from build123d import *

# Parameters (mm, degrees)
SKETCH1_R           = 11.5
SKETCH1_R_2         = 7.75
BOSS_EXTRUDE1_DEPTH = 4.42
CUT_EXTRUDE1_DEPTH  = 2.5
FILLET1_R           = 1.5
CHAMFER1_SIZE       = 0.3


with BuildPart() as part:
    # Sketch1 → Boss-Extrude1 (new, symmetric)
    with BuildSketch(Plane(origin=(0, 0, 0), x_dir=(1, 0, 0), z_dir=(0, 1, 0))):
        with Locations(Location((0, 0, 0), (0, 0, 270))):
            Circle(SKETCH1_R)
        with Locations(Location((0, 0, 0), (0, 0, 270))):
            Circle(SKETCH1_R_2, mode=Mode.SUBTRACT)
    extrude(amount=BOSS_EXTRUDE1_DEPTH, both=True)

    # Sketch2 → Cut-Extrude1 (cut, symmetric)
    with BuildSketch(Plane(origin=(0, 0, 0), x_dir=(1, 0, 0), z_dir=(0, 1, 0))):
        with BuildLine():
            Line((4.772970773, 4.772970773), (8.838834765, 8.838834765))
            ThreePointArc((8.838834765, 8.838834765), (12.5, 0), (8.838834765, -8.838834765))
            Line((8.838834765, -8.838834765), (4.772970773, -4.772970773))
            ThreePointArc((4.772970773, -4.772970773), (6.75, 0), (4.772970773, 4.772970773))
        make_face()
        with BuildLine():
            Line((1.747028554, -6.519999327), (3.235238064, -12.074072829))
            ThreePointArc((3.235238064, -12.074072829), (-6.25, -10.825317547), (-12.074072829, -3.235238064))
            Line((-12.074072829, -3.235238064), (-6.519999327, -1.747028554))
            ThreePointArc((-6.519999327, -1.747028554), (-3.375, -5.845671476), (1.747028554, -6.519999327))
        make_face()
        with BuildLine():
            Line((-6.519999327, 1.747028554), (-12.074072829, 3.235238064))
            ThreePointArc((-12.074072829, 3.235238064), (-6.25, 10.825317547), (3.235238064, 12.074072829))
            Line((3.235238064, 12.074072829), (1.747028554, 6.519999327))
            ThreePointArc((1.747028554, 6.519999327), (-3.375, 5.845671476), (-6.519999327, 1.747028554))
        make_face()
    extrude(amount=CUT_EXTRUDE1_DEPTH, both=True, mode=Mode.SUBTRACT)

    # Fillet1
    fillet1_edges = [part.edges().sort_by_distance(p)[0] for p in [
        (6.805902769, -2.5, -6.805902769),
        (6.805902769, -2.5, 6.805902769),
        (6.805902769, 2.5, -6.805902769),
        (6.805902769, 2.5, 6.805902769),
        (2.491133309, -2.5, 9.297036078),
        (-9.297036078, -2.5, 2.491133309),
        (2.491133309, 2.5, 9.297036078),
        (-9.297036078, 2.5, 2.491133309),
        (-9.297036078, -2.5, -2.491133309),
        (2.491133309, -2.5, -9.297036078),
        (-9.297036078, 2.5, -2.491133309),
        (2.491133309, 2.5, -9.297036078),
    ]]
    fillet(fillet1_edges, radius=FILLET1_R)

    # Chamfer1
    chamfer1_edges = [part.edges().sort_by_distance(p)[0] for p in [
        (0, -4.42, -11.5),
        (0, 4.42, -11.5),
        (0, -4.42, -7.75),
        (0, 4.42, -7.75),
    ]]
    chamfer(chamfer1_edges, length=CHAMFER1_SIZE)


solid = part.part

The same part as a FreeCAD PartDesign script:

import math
import FreeCAD as App
import Part
import Sketcher
from FreeCAD import Vector
Q = App.Units.Quantity


def edges_at(feature, points):
    """Names of the edges that pass closest to the given points."""
    edges = feature.Shape.Edges
    near = lambda p: min(range(len(edges)), key=lambda i: edges[i].distToShape(Part.Vertex(*p))[0])
    return sorted({f"Edge{near(p) + 1}" for p in points})

doc = App.newDocument("Part")
body = doc.addObject("PartDesign::Body", "Body")

# Sketch on XZ plane
sketch1 = doc.addObject("Sketcher::SketchObject", "Sketch")
body.addObject(sketch1)
sketch1.AttachmentSupport = (doc.XZ_Plane, [""])
sketch1.MapMode = "FlatFace"
sketch1.addGeometry([
    Part.Circle(Vector(0, 0, 0), Vector(0, 0, 1), 12),
    Part.Circle(Vector(0, 0, 0), Vector(0, 0, 1), 8),
], False)
sketch1.addConstraint([
    Sketcher.Constraint("Coincident", 0, 3, -1, 1),
    Sketcher.Constraint("Coincident", 1, 3, -1, 1),
    Sketcher.Constraint("Diameter", 0, Q("23 mm")),
    Sketcher.Constraint("Diameter", 1, Q("15.5 mm")),
])
pad1 = doc.addObject("PartDesign::Pad", "Pad")
body.addObject(pad1)
pad1.Profile = sketch1
pad1.Length = 8.84
pad1.Midplane = True

# Sketch on XZ plane
sketch2 = doc.addObject("Sketcher::SketchObject", "Sketch001")
body.addObject(sketch2)
sketch2.AttachmentSupport = (doc.XZ_Plane, [""])
sketch2.MapMode = "FlatFace"
sketch2.addGeometry([
    Part.LineSegment(Vector(9, -9, 0), Vector(5, -5, 0)),  # 0
    Part.ArcOfCircle(Part.Circle(Vector(0, 0, 0), Vector(0, 0, 1), 7), math.radians(-45), math.radians(45)),  # 1
    Part.LineSegment(Vector(5, 5, 0), Vector(9, 9, 0)),  # 2
    Part.ArcOfCircle(Part.Circle(Vector(0, 0, 0), Vector(0, 0, 1), 13), math.radians(-45), math.radians(45)),  # 3
    Part.LineSegment(Vector(3, 12, 0), Vector(2, 7, 0)),  # 4
    Part.ArcOfCircle(Part.Circle(Vector(0, 0, 0), Vector(0, 0, 1), 7), math.radians(75), math.radians(165)),  # 5
    Part.LineSegment(Vector(-7, 2, 0), Vector(-12, 3, 0)),  # 6
    Part.ArcOfCircle(Part.Circle(Vector(0, 0, 0), Vector(0, 0, 1), 13), math.radians(75), math.radians(165)),  # 7
    Part.LineSegment(Vector(-12, -3, 0), Vector(-7, -2, 0)),  # 8
    Part.ArcOfCircle(Part.Circle(Vector(0, 0, 0), Vector(0, 0, 1), 7), math.radians(-165), math.radians(-75)),  # 9
    Part.LineSegment(Vector(2, -7, 0), Vector(3, -12, 0)),  # 10
    Part.ArcOfCircle(Part.Circle(Vector(0, 0, 0), Vector(0, 0, 1), 13), math.radians(-165), math.radians(-75)),  # 11
], False)
sketch2.addConstraint([
    Sketcher.Constraint("Coincident", 0, 2, 1, 1),
    Sketcher.Constraint("Coincident", 1, 2, 2, 1),
    Sketcher.Constraint("Coincident", 2, 2, 3, 2),
    Sketcher.Constraint("Coincident", 3, 1, 0, 1),
    Sketcher.Constraint("Coincident", 4, 2, 5, 1),
    Sketcher.Constraint("Coincident", 5, 2, 6, 1),
    Sketcher.Constraint("Coincident", 6, 2, 7, 2),
    Sketcher.Constraint("Coincident", 7, 1, 4, 1),
    Sketcher.Constraint("Coincident", 8, 2, 9, 1),
    Sketcher.Constraint("Coincident", 9, 2, 10, 1),
    Sketcher.Constraint("Coincident", 10, 2, 11, 2),
    Sketcher.Constraint("Coincident", 11, 1, 8, 1),
    Sketcher.Constraint("Coincident", 1, 3, -1, 1),
    Sketcher.Constraint("Coincident", 3, 3, -1, 1),
    Sketcher.Constraint("Coincident", 5, 3, -1, 1),
    Sketcher.Constraint("Coincident", 7, 3, -1, 1),
    Sketcher.Constraint("Coincident", 9, 3, -1, 1),
    Sketcher.Constraint("Coincident", 11, 3, -1, 1),
    Sketcher.Constraint("Equal", 1, 5),
    Sketcher.Constraint("Equal", 3, 7),
    Sketcher.Constraint("Equal", 5, 9),
    Sketcher.Constraint("Equal", 7, 11),
    Sketcher.Constraint("Perpendicular", 0, 2),
    Sketcher.Constraint("Perpendicular", 4, 6),
    Sketcher.Constraint("Perpendicular", 8, 10),
    Sketcher.Constraint("Vertical", 0, 2, 1, 2),
    Sketcher.Constraint("Vertical", 2, 2, 3, 1),
    Sketcher.Constraint("Vertical", 5, 2, 8, 2),
    Sketcher.Constraint("Vertical", 4, 2, 9, 2),
    Sketcher.Constraint("Vertical", 7, 1, 10, 2),
    Sketcher.Constraint("Radius", 3, Q("12.5 mm")),
    Sketcher.Constraint("Angle", 4, Q("-105 deg")),
    Sketcher.Constraint("Radius", 1, Q("6.75 mm")),
    Sketcher.Constraint("DistanceY", -1, 1, 4, 2, Q("6.519999 mm")),
    Sketcher.Constraint("DistanceX", 5, 2, -1, 1, Q("6.519999 mm")),
    Sketcher.Constraint("DistanceX", -1, 1, 0, 2, Q("4.772971 mm")),
])
pocket1 = doc.addObject("PartDesign::Pocket", "Pocket")
body.addObject(pocket1)
pocket1.Profile = sketch2
pocket1.Length = 5
pocket1.Midplane = True
doc.recompute()

fillet = doc.addObject("PartDesign::Fillet", "Fillet")
body.addObject(fillet)
fillet.Base = (pocket1, edges_at(pocket1, [
    (6.806, -2.5, -6.806),
    (6.806, -2.5, 6.806),
    (6.806, 2.5, -6.806),
    (6.806, 2.5, 6.806),
    (2.491, -2.5, 9.297),
    (-9.297, -2.5, 2.491),
    (2.491, 2.5, 9.297),
    (-9.297, 2.5, 2.491),
    (-9.297, -2.5, -2.491),
    (2.491, -2.5, -9.297),
    (-9.297, 2.5, -2.491),
    (2.491, 2.5, -9.297),
]))
fillet.Radius = 1.5
doc.recompute()

chamfer = doc.addObject("PartDesign::Chamfer", "Chamfer")
body.addObject(chamfer)
chamfer.Base = (fillet, edges_at(fillet, [
    (0, -4.42, -11.5),
    (0, 4.42, -11.5),
    (0, -4.42, -7.75),
    (0, 4.42, -7.75),
]))
chamfer.Size = 0.3

doc.recompute()
